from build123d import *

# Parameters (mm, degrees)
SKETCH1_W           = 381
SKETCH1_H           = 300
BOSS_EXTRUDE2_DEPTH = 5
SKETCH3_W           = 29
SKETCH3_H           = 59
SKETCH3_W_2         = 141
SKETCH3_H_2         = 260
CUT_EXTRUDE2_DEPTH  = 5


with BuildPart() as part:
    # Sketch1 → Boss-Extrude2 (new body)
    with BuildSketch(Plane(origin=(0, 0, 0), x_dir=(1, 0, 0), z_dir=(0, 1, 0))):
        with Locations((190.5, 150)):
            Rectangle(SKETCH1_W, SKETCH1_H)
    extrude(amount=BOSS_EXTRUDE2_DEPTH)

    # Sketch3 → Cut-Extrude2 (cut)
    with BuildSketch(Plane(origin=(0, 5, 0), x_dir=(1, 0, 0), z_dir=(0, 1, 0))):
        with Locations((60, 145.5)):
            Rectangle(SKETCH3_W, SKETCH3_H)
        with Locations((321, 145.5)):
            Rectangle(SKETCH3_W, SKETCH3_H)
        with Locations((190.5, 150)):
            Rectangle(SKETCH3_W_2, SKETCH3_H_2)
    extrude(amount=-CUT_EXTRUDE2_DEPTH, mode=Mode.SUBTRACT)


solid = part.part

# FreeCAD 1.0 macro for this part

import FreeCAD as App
import Part
import Sketcher
from FreeCAD import Vector


def add_polygon(sketch, points):
    """Adds a closed chain of lines whose ends are joined by coincident constraints."""
    first, n = sketch.GeometryCount, len(points)
    for a, b in zip(points, points[1:] + points[:1]):
        sketch.addGeometry(Part.LineSegment(App.Vector(*a, 0), App.Vector(*b, 0)), False)
    for i in range(n):
        sketch.addConstraint(Sketcher.Constraint("Coincident", first + i, 2, first + (i + 1) % n, 1))

doc = App.newDocument("Part")
body = doc.addObject("PartDesign::Body", "Body")

sketch1 = body.newObject("Sketcher::SketchObject", "Sketch")
sketch1.AttachmentSupport = (doc.getObject("XZ_Plane"), [""])
sketch1.MapMode = "FlatFace"
add_polygon(sketch1, [(0, -300), (0, 0), (381, 0), (381, -300)])
sketch1.addConstraint(Sketcher.Constraint("Vertical", 0))
sketch1.addConstraint(Sketcher.Constraint("Horizontal", 1))
sketch1.addConstraint(Sketcher.Constraint("Vertical", 2))
sketch1.addConstraint(Sketcher.Constraint("Horizontal", 3))
sketch1.addConstraint(Sketcher.Constraint("Coincident", 0, 2, -1, 1))
sketch1.addConstraint(Sketcher.Constraint("DistanceX", 1, 1, 1, 2, 381.0))
sketch1.addConstraint(Sketcher.Constraint("DistanceY", 0, 1, 0, 2, 300.0))
pad1 = body.newObject("PartDesign::Pad", "Pad")
pad1.Profile = sketch1
pad1.Length = 5
pad1.Reversed = True

sketch2 = body.newObject("Sketcher::SketchObject", "Sketch001")
sketch2.AttachmentSupport = (doc.getObject("XZ_Plane"), [""])
sketch2.MapMode = "FlatFace"
sketch2.AttachmentOffset = App.Placement(Vector(0, 0, -5), App.Rotation())
add_polygon(sketch2, [(46, -175), (46, -116), (74, -116), (74, -175)])
add_polygon(sketch2, [(306, -175), (306, -116), (336, -116), (336, -175)])
add_polygon(sketch2, [(120, -280), (120, -20), (261, -20), (261, -280)])
sketch2.addConstraint(Sketcher.Constraint("Vertical", 0))
sketch2.addConstraint(Sketcher.Constraint("Horizontal", 1))
sketch2.addConstraint(Sketcher.Constraint("Vertical", 2))
sketch2.addConstraint(Sketcher.Constraint("Horizontal", 3))
sketch2.addConstraint(Sketcher.Constraint("Vertical", 4))
sketch2.addConstraint(Sketcher.Constraint("Horizontal", 5))
sketch2.addConstraint(Sketcher.Constraint("Vertical", 6))
sketch2.addConstraint(Sketcher.Constraint("Horizontal", 7))
sketch2.addConstraint(Sketcher.Constraint("Vertical", 8))
sketch2.addConstraint(Sketcher.Constraint("Horizontal", 9))
sketch2.addConstraint(Sketcher.Constraint("Vertical", 10))
sketch2.addConstraint(Sketcher.Constraint("Horizontal", 11))
sketch2.addConstraint(Sketcher.Constraint("Horizontal", 1, 2, 4, 2))
sketch2.addConstraint(Sketcher.Constraint("Horizontal", 3, 2, 6, 2))
sketch2.addConstraint(Sketcher.Constraint("Equal", 3, 5))
sketch2.addConstraint(Sketcher.Constraint("DistanceX", 1, 1, 1, 2, 29.0))
sketch2.addConstraint(Sketcher.Constraint("DistanceX", 9, 1, 9, 2, 141.0))
sketch2.addConstraint(Sketcher.Constraint("DistanceY", 0, 1, 0, 2, 59.0))
sketch2.addConstraint(Sketcher.Constraint("DistanceY", 8, 1, 8, 2, 260.0))
sketch2.addConstraint(Sketcher.Constraint("DistanceY", 0, 2, -1, 1, 116.0))
sketch2.addConstraint(Sketcher.Constraint("DistanceX", -1, 1, 8, 2, 120.0))
sketch2.addConstraint(Sketcher.Constraint("DistanceY", 8, 2, -1, 1, 20.0))
sketch2.addConstraint(Sketcher.Constraint("DistanceX", 1, 2, 4, 2, 232.0))
sketch2.addConstraint(Sketcher.Constraint("DistanceX", -1, 1, 0, 2, 45.5))
pocket1 = body.newObject("PartDesign::Pocket", "Pocket")
pocket1.Profile = sketch2
pocket1.Length = 5
pocket1.Reversed = True

doc.recompute()
